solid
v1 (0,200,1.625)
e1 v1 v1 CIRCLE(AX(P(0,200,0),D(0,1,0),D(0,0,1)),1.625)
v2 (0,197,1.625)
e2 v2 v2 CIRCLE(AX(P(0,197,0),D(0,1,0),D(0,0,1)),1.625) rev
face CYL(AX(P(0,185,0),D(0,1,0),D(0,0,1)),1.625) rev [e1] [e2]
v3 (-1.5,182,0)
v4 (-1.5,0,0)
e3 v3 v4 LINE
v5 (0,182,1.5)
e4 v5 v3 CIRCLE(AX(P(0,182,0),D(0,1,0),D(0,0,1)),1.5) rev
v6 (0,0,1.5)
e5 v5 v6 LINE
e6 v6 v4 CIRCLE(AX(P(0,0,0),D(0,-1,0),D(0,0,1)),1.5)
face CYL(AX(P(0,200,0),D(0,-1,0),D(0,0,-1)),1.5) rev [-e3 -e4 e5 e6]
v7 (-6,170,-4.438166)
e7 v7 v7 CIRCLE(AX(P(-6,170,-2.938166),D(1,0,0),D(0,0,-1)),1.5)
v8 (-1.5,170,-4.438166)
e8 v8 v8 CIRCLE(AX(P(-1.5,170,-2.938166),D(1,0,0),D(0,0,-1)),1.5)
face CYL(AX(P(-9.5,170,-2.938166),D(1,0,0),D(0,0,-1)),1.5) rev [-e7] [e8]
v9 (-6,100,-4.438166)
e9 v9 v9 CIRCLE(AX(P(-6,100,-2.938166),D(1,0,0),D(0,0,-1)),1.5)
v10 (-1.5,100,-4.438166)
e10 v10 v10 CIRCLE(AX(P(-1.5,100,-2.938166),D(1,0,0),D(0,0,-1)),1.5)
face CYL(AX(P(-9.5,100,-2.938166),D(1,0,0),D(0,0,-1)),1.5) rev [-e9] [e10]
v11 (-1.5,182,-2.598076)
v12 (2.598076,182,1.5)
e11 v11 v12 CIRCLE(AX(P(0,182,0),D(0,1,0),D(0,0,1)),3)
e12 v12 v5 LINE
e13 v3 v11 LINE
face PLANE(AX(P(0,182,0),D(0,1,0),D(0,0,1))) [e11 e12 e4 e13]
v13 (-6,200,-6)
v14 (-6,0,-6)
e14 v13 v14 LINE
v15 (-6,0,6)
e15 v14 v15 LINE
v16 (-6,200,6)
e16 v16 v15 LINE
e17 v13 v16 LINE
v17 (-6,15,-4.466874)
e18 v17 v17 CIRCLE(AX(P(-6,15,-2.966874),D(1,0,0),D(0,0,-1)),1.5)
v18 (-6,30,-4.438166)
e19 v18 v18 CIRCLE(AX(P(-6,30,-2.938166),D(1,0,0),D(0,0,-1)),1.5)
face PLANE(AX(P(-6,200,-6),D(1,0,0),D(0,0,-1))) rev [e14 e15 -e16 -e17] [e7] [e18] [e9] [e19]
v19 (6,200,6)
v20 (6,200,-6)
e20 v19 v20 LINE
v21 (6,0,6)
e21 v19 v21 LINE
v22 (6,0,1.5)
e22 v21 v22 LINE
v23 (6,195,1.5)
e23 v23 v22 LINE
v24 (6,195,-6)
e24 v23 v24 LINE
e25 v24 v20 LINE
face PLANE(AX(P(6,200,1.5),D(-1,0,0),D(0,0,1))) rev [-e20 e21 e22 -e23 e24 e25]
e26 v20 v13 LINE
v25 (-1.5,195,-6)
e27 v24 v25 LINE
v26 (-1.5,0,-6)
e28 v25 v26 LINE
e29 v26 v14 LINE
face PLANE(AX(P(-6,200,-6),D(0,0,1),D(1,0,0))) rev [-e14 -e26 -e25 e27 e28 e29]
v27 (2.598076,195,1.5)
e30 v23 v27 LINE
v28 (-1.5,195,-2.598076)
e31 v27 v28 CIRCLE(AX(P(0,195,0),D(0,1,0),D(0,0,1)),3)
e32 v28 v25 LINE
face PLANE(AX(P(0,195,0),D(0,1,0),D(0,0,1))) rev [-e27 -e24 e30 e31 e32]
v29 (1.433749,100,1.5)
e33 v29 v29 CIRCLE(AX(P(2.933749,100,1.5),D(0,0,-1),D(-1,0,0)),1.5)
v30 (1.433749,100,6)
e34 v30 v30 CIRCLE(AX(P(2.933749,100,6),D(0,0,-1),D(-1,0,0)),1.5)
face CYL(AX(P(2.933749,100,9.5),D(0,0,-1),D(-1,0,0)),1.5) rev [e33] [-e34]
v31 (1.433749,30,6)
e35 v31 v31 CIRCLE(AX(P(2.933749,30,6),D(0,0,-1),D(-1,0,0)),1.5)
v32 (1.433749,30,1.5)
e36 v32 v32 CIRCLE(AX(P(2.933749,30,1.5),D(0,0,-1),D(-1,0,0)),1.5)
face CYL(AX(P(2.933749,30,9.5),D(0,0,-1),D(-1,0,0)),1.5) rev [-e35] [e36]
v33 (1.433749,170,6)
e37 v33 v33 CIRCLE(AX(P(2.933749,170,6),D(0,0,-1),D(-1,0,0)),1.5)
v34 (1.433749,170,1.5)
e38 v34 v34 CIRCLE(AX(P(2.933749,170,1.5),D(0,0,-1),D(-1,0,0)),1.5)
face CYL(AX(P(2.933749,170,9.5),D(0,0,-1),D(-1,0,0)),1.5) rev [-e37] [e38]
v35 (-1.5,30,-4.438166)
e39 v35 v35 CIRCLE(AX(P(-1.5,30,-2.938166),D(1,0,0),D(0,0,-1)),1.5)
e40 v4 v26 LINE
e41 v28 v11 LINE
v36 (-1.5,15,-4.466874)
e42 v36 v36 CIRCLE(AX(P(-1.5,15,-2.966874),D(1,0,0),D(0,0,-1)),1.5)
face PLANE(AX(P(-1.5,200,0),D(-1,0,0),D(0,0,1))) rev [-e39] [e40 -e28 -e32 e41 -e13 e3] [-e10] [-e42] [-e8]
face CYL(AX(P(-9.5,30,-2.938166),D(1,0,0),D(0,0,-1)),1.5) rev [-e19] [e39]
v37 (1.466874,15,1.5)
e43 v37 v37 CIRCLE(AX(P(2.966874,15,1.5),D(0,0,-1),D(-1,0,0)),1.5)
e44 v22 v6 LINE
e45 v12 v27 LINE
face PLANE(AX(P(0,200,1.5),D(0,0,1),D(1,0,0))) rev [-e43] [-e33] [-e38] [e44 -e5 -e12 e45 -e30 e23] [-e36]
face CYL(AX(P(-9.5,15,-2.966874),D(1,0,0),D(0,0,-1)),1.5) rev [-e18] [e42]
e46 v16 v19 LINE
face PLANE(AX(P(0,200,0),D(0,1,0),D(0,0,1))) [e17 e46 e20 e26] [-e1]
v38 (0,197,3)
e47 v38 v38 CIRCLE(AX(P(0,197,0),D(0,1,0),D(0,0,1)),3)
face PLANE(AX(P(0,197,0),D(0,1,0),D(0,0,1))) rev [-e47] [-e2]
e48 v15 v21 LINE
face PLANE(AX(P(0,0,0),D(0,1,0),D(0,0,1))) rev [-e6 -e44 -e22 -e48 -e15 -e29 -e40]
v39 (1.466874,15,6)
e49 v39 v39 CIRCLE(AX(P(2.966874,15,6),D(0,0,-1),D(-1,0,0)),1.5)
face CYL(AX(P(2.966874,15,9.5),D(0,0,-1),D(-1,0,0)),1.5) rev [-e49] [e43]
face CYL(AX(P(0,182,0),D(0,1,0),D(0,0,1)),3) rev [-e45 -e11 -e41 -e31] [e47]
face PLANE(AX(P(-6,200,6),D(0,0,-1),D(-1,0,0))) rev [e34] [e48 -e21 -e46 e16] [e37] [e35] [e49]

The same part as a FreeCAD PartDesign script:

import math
import FreeCAD as App
import Part
import Sketcher
Q = App.Units.Quantity

doc = App.newDocument("Part")
body = doc.addObject("PartDesign::Body", "Body")

sketch1 = doc.addObject("Sketcher::SketchObject", "Sketch")
body.addObject(sketch1)
sketch1.AttachmentSupport = (doc.XZ_Plane, [""])
sketch1.MapMode = "FlatFace"
sketch1.addGeometry([
    Part.LineSegment(App.Vector(-1.5, -6, 0), App.Vector(-6, -6, 0)),
    Part.LineSegment(App.Vector(-6, -6, 0), App.Vector(-6, 6, 0)),
    Part.LineSegment(App.Vector(-6, 6, 0), App.Vector(6, 6, 0)),
    Part.LineSegment(App.Vector(6, 6, 0), App.Vector(6, 1.5, 0)),
    Part.LineSegment(App.Vector(6, 1.5, 0), App.Vector(0, 1.5, 0)),
    Part.ArcOfCircle(Part.Circle(App.Vector(0, 0, 0), App.Vector(0, 0, 1), 1.5), math.radians(90), math.radians(180)),
    Part.LineSegment(App.Vector(-1.5, 0, 0), App.Vector(-1.5, -6, 0)),
], False)
sketch1.addConstraint([
    Sketcher.Constraint("Coincident", 0, 2, 1, 1),
    Sketcher.Constraint("Coincident", 1, 2, 2, 1),
    Sketcher.Constraint("Coincident", 2, 2, 3, 1),
    Sketcher.Constraint("Coincident", 3, 2, 4, 1),
    Sketcher.Constraint("Tangent", 4, 2, 5, 1),
    Sketcher.Constraint("Tangent", 5, 2, 6, 1),
    Sketcher.Constraint("Coincident", 6, 2, 0, 1),
    Sketcher.Constraint("Horizontal", 0),
    Sketcher.Constraint("Vertical", 1),
    Sketcher.Constraint("Horizontal", 2),
    Sketcher.Constraint("Vertical", 3),
    Sketcher.Constraint("Horizontal", 4),
    Sketcher.Constraint("Vertical", 6),
    Sketcher.Constraint("Coincident", 5, 3, -1, 1),
    Sketcher.Constraint("Symmetric", 0, 2, 2, 2, -1, 1),
    Sketcher.Constraint("Equal", 2, 1),
    Sketcher.Constraint("Radius", 5, Q("1.5 mm")),
    Sketcher.Constraint("DistanceX", 2, 1, 2, 2, Q("12 mm")),
])
pad1 = doc.addObject("PartDesign::Pad", "Pad")
body.addObject(pad1)
pad1.Profile = sketch1
pad1.Length = 200
pad1.Reversed = True

sketch2 = doc.addObject("Sketcher::SketchObject", "Sketch001")
body.addObject(sketch2)
sketch2.AttachmentSupport = (doc.XZ_Plane, [""])
sketch2.MapMode = "FlatFace"
sketch2.AttachmentOffset = App.Placement(App.Vector(0, 0, -200), App.Rotation())
sketch2.addGeometry([
    Part.LineSegment(App.Vector(-6, -6, 0), App.Vector(-6, 6, 0)),
    Part.LineSegment(App.Vector(-6, 6, 0), App.Vector(6, 6, 0)),
    Part.LineSegment(App.Vector(6, 6, 0), App.Vector(6, -6, 0)),
    Part.LineSegment(App.Vector(6, -6, 0), App.Vector(-6, -6, 0)),
], False)
sketch2.addConstraint([
    Sketcher.Constraint("Coincident", 0, 2, 1, 1),
    Sketcher.Constraint("Coincident", 1, 2, 2, 1),
    Sketcher.Constraint("Coincident", 2, 2, 3, 1),
    Sketcher.Constraint("Coincident", 3, 2, 0, 1),
    Sketcher.Constraint("Vertical", 0),
    Sketcher.Constraint("Horizontal", 1),
    Sketcher.Constraint("Vertical", 2),
    Sketcher.Constraint("Horizontal", 3),
    Sketcher.Constraint("Symmetric", 0, 2, 2, 2, -1, 1),
    Sketcher.Constraint("Equal", 3, 0),
    Sketcher.Constraint("DistanceX", 1, 1, 1, 2, Q("12 mm")),
])
pad2 = doc.addObject("PartDesign::Pad", "Pad001")
body.addObject(pad2)
pad2.Profile = sketch2
pad2.Length = 5

sketch3 = doc.addObject("Sketcher::SketchObject", "Sketch002")
body.addObject(sketch3)
sketch3.AttachmentSupport = (doc.XZ_Plane, [""])
sketch3.MapMode = "FlatFace"
sketch3.AttachmentOffset = App.Placement(App.Vector(0, 0, -200), App.Rotation())
sketch3.addGeometry(Part.Circle(App.Vector(0, 0, 0), App.Vector(0, 0, 1), 1.6), False)
sketch3.addConstraint([
    Sketcher.Constraint("Coincident", 0, 3, -1, 1),
    Sketcher.Constraint("Diameter", 0, Q("3.25 mm")),
])
pocket1 = doc.addObject("PartDesign::Pocket", "Pocket")
body.addObject(pocket1)
pocket1.Profile = sketch3
pocket1.Length = 15
pocket1.Reversed = True

sketch4 = doc.addObject("Sketcher::SketchObject", "Sketch003")
body.addObject(sketch4)
sketch4.AttachmentSupport = (doc.XZ_Plane, [""])
sketch4.MapMode = "FlatFace"
sketch4.AttachmentOffset = App.Placement(App.Vector(0, 0, -197), App.Rotation())
sketch4.addGeometry(Part.Circle(App.Vector(0, 0, 0), App.Vector(0, 0, 1), 3), False)
sketch4.addConstraint([
    Sketcher.Constraint("Coincident", 0, 3, -1, 1),
    Sketcher.Constraint("Diameter", 0, Q("6 mm")),
])
pocket2 = doc.addObject("PartDesign::Pocket", "Pocket001")
body.addObject(pocket2)
pocket2.Profile = sketch4
pocket2.Length = 15
pocket2.Reversed = True

sketch5 = doc.addObject("Sketcher::SketchObject", "Sketch004")
body.addObject(sketch5)
sketch5.AttachmentSupport = (doc.XY_Plane, [""])
sketch5.MapMode = "FlatFace"
sketch5.AttachmentOffset = App.Placement(App.Vector(0, 0, 1.5), App.Rotation())
sketch5.addGeometry([
    Part.Circle(App.Vector(2.9, 30, 0), App.Vector(0, 0, 1), 1.5),
    Part.Circle(App.Vector(2.9, 100, 0), App.Vector(0, 0, 1), 1.5),
    Part.Circle(App.Vector(2.9, 170, 0), App.Vector(0, 0, 1), 1.5),
    Part.Circle(App.Vector(3, 15, 0), App.Vector(0, 0, 1), 1.5),
], False)
sketch5.addConstraint([
    Sketcher.Constraint("Equal", 0, 1),
    Sketcher.Constraint("Equal", 1, 2),
    Sketcher.Constraint("Equal", 2, 3),
    Sketcher.Constraint("Vertical", 0, 3, 1, 3),
    Sketcher.Constraint("Vertical", 1, 3, 2, 3),
    Sketcher.Constraint("Diameter", 0, Q("3 mm")),
    Sketcher.Constraint("DistanceY", -1, 1, 0, 3, Q("30 mm")),
    Sketcher.Constraint("DistanceY", -1, 1, 1, 3, Q("100 mm")),
    Sketcher.Constraint("DistanceY", -1, 1, 2, 3, Q("170 mm")),
    Sketcher.Constraint("DistanceY", -1, 1, 3, 3, Q("15 mm")),
    Sketcher.Constraint("DistanceX", -1, 1, 0, 3, Q("2.933749 mm")),
    Sketcher.Constraint("DistanceX", -1, 1, 3, 3, Q("2.966874 mm")),
])
pocket3 = doc.addObject("PartDesign::Pocket", "Pocket002")
body.addObject(pocket3)
pocket3.Profile = sketch5
pocket3.Length = 8
pocket3.Reversed = True

sketch6 = doc.addObject("Sketcher::SketchObject", "Sketch005")
body.addObject(sketch6)
sketch6.AttachmentSupport = (doc.YZ_Plane, [""])
sketch6.MapMode = "FlatFace"
sketch6.AttachmentOffset = App.Placement(App.Vector(0, 0, -1.5), App.Rotation())
sketch6.addGeometry([
    Part.Circle(App.Vector(30, -2.9, 0), App.Vector(0, 0, 1), 1.5),
    Part.Circle(App.Vector(100, -2.9, 0), App.Vector(0, 0, 1), 1.5),
    Part.Circle(App.Vector(170, -2.9, 0), App.Vector(0, 0, 1), 1.5),
    Part.Circle(App.Vector(15, -3, 0), App.Vector(0, 0, 1), 1.5),
], False)
sketch6.addConstraint([
    Sketcher.Constraint("Equal", 0, 1),
    Sketcher.Constraint("Equal", 1, 2),
    Sketcher.Constraint("Equal", 2, 3),
    Sketcher.Constraint("Horizontal", 0, 3, 1, 3),
    Sketcher.Constraint("Horizontal", 1, 3, 2, 3),
    Sketcher.Constraint("Diameter", 0, Q("3 mm")),
    Sketcher.Constraint("DistanceX", -1, 1, 0, 3, Q("30 mm")),
    Sketcher.Constraint("DistanceX", -1, 1, 1, 3, Q("100 mm")),
    Sketcher.Constraint("DistanceX", -1, 1, 2, 3, Q("170 mm")),
    Sketcher.Constraint("DistanceX", -1, 1, 3, 3, Q("15 mm")),
    Sketcher.Constraint("DistanceY", 3, 3, 0, 3, Q("0.028709 mm")),
    Sketcher.Constraint("DistanceY", 0, 3, -1, 1, Q("2.938166 mm")),
])
pocket4 = doc.addObject("PartDesign::Pocket", "Pocket003")
body.addObject(pocket4)
pocket4.Profile = sketch6
pocket4.Length = 8

doc.recompute()
